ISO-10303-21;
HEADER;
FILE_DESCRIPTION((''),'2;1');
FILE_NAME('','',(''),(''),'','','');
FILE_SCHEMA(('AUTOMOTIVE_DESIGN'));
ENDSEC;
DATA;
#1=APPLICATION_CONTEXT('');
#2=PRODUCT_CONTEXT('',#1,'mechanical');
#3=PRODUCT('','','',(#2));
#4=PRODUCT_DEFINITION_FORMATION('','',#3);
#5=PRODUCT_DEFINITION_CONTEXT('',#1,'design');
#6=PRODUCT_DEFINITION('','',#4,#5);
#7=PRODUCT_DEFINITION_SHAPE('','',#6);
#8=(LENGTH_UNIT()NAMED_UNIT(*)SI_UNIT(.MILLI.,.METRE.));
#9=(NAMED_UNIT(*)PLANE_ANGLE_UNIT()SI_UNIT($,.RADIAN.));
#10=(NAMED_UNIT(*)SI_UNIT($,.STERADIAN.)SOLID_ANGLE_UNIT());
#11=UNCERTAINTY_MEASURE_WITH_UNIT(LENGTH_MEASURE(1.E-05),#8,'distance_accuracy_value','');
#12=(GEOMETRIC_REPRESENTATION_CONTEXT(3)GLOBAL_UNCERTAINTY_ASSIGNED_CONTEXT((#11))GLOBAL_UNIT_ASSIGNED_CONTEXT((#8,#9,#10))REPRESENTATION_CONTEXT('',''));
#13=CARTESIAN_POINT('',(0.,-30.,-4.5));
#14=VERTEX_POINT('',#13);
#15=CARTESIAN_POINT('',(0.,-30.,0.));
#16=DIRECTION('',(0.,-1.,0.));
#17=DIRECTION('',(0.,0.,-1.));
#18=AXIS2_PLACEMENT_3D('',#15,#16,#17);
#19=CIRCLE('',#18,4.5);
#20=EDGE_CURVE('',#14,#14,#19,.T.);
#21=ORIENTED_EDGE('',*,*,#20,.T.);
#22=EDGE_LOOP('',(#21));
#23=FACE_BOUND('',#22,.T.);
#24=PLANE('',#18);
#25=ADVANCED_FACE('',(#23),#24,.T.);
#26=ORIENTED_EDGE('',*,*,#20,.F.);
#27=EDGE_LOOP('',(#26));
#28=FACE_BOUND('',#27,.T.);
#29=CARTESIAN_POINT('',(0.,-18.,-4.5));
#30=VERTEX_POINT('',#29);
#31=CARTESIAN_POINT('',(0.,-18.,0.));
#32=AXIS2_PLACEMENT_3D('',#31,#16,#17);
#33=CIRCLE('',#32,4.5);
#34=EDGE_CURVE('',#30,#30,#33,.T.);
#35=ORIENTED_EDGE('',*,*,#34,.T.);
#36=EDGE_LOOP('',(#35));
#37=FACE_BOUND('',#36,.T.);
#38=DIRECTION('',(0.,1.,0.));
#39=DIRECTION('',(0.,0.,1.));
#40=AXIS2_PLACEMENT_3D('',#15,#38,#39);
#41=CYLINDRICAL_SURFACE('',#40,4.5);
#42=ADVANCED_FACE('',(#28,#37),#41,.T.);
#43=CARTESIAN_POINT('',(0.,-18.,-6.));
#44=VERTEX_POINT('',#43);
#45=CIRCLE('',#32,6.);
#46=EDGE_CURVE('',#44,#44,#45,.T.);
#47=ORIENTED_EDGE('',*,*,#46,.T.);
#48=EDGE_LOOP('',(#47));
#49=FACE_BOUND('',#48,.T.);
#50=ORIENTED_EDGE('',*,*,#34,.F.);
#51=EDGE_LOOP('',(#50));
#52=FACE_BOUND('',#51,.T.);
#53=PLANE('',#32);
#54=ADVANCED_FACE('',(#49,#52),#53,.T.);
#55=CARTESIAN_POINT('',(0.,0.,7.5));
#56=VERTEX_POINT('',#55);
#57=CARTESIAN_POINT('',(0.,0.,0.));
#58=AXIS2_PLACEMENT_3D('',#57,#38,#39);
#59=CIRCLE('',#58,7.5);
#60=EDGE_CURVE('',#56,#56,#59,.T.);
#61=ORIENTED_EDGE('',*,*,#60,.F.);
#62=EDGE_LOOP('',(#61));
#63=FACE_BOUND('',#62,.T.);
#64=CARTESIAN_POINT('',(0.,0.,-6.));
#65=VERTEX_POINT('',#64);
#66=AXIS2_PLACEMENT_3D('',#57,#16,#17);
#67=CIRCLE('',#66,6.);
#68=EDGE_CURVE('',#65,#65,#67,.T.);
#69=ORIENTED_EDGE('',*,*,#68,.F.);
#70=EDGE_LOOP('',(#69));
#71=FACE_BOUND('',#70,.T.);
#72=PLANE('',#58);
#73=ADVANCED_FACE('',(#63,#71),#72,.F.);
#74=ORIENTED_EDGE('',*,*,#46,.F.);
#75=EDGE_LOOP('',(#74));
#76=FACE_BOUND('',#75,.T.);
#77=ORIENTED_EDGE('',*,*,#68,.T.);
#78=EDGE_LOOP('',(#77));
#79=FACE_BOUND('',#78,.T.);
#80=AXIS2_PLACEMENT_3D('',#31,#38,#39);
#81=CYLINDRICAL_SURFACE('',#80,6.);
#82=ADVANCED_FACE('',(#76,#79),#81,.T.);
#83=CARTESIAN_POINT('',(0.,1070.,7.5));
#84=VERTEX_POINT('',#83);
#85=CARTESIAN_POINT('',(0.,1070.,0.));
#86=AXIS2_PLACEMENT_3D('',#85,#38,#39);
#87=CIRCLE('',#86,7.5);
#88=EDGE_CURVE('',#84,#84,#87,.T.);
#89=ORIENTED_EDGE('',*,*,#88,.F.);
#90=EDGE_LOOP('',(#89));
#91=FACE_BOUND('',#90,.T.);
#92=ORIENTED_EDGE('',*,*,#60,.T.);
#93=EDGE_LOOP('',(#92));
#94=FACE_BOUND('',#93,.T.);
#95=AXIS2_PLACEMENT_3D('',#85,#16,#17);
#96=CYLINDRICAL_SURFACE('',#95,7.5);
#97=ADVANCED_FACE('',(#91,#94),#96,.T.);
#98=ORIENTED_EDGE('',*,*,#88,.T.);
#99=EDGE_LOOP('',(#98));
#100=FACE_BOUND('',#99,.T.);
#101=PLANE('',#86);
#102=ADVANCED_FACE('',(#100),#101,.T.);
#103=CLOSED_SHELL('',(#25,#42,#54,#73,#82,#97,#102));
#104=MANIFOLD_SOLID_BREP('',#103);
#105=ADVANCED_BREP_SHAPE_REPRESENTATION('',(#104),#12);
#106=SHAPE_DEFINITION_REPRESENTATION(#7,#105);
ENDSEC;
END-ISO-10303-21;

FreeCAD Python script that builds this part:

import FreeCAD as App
import Part
import Sketcher
Q = App.Units.Quantity

doc = App.newDocument("Part")
body = doc.addObject("PartDesign::Body", "Body")

sketch1 = body.newObject("Sketcher::SketchObject", "Sketch")
sketch1.AttachmentSupport = (doc.getObject("XZ_Plane"), [""])
sketch1.MapMode = "FlatFace"
sketch1.addGeometry(Part.Circle(App.Vector(0, 0, 0), App.Vector(0, 0, 1), 8), False)
sketch1.addConstraint([
    Sketcher.Constraint("Coincident", 0, 3, -1, 1),
    Sketcher.Constraint("Diameter", 0, Q("15 mm")),
])
pad1 = body.newObject("PartDesign::Pad", "Pad")
pad1.Profile = sketch1
pad1.Length = 1070
pad1.Reversed = True

sketch2 = body.newObject("Sketcher::SketchObject", "Sketch001")
sketch2.AttachmentSupport = (doc.getObject("XZ_Plane"), [""])
sketch2.MapMode = "FlatFace"
sketch2.addGeometry(Part.Circle(App.Vector(0, 0, 0), App.Vector(0, 0, 1), 6), False)
sketch2.addConstraint([
    Sketcher.Constraint("Coincident", 0, 3, -1, 1),
    Sketcher.Constraint("Diameter", 0, Q("12 mm")),
])
pad2 = body.newObject("PartDesign::Pad", "Pad001")
pad2.Profile = sketch2
pad2.Length = 18

sketch3 = body.newObject("Sketcher::SketchObject", "Sketch002")
sketch3.AttachmentSupport = (doc.getObject("XZ_Plane"), [""])
sketch3.MapMode = "FlatFace"
sketch3.AttachmentOffset = App.Placement(App.Vector(0, 0, 18), App.Rotation())
sketch3.addGeometry(Part.Circle(App.Vector(0, 0, 0), App.Vector(0, 0, 1), 4.5), False)
sketch3.addConstraint([
    Sketcher.Constraint("Coincident", 0, 3, -1, 1),
    Sketcher.Constraint("Diameter", 0, Q("9 mm")),
])
pad3 = body.newObject("PartDesign::Pad", "Pad002")
pad3.Profile = sketch3
pad3.Length = 12

doc.recompute()
